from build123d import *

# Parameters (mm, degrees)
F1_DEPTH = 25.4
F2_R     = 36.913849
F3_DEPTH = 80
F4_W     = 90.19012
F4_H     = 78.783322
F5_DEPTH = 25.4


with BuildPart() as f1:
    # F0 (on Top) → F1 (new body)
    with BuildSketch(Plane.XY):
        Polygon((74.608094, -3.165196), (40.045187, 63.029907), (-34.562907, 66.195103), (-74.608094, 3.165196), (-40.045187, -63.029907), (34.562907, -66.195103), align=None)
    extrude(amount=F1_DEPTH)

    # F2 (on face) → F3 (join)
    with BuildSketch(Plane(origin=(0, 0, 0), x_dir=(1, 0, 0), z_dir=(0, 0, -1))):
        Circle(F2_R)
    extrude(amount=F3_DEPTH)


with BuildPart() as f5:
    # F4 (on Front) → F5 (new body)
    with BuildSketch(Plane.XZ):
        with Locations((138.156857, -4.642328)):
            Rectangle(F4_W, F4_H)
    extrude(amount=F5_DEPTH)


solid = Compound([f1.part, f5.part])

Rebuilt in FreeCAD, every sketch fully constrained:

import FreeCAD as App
import Part
import Sketcher

V = App.Vector

doc = App.newDocument("Part")
body = doc.addObject("PartDesign::Body", "Body")

sketch1 = body.newObject("Sketcher::SketchObject", "Sketch")
sketch1.AttachmentSupport = (doc.getObject("XY_Plane"), [""])
sketch1.MapMode = "FlatFace"
sketch1.addGeometry([
    Part.LineSegment(V(75, -3, 0), V(40, 63, 0)),
    Part.LineSegment(V(40, 63, 0), V(-35, 66, 0)),
    Part.LineSegment(V(-35, 66, 0), V(-75, 3, 0)),
    Part.LineSegment(V(-75, 3, 0), V(-40, -63, 0)),
    Part.LineSegment(V(-40, -63, 0), V(35, -66, 0)),
    Part.LineSegment(V(35, -66, 0), V(75, -3, 0)),
], False)
sketch1.addConstraint([
    Sketcher.Constraint("Coincident", 0, 2, 1, 1),
    Sketcher.Constraint("Coincident", 1, 2, 2, 1),
    Sketcher.Constraint("Coincident", 2, 2, 3, 1),
    Sketcher.Constraint("Coincident", 3, 2, 4, 1),
    Sketcher.Constraint("Coincident", 4, 2, 5, 1),
    Sketcher.Constraint("Coincident", 5, 2, 0, 1),
    Sketcher.Constraint("Symmetric", 0, 2, 3, 2, -1, 1),
    Sketcher.Constraint("Symmetric", 1, 2, 4, 2, -1, 1),
    Sketcher.Constraint("Symmetric", 2, 2, 5, 2, -1, 1),
    Sketcher.Constraint("Equal", 0, 1),
    Sketcher.Constraint("Equal", 1, 2),
    Sketcher.Constraint("DistanceX", 2, 2, 4, 2, 109.171001),
    Sketcher.Constraint("DistanceY", 4, 2, 2, 2, 69.360299),
    Sketcher.Constraint("DistanceX", 2, 2, 0, 2, 114.653281),
    Sketcher.Constraint("DistanceY", 2, 2, 0, 2, 59.864711),
])
pad1 = body.newObject("PartDesign::Pad", "Pad")
pad1.Profile = sketch1
pad1.Length = 25.4

sketch2 = body.newObject("Sketcher::SketchObject", "Sketch001")
sketch2.AttachmentSupport = (doc.getObject("XY_Plane"), [""])
sketch2.MapMode = "FlatFace"
sketch2.addGeometry(Part.Circle(V(0, 0, 0), V(0, 0, 1), 37), False)
sketch2.addConstraint([
    Sketcher.Constraint("Coincident", 0, 3, -1, 1),
    Sketcher.Constraint("Diameter", 0, 73.827698),
])
pad2 = body.newObject("PartDesign::Pad", "Pad001")
pad2.Profile = sketch2
pad2.Length = 80
pad2.Reversed = True
body2 = doc.addObject("PartDesign::Body", "Body001")

sketch3 = body2.newObject("Sketcher::SketchObject", "Sketch002")
sketch3.AttachmentSupport = (doc.getObject("XZ_Plane001"), [""])
sketch3.MapMode = "FlatFace"
sketch3.addGeometry([
    Part.LineSegment(V(93, 35, 0), V(93, -44, 0)),
    Part.LineSegment(V(93, -44, 0), V(183, -44, 0)),
    Part.LineSegment(V(183, -44, 0), V(183, 35, 0)),
    Part.LineSegment(V(183, 35, 0), V(93, 35, 0)),
], False)
sketch3.addConstraint([
    Sketcher.Constraint("Coincident", 0, 2, 1, 1),
    Sketcher.Constraint("Coincident", 1, 2, 2, 1),
    Sketcher.Constraint("Coincident", 2, 2, 3, 1),
    Sketcher.Constraint("Coincident", 3, 2, 0, 1),
    Sketcher.Constraint("Vertical", 0),
    Sketcher.Constraint("Horizontal", 1),
    Sketcher.Constraint("Vertical", 2),
    Sketcher.Constraint("Horizontal", 3),
    Sketcher.Constraint("DistanceX", 1, 1, 1, 2, 90.19012),
    Sketcher.Constraint("DistanceY", 0, 2, 0, 1, 78.783322),
    Sketcher.Constraint("DistanceY", 0, 2, -1, 1, 44.033989),
    Sketcher.Constraint("DistanceX", -1, 1, 0, 2, 93.061797),
])
pad3 = body2.newObject("PartDesign::Pad", "Pad002")
pad3.Profile = sketch3
pad3.Length = 25.4

doc.recompute()
